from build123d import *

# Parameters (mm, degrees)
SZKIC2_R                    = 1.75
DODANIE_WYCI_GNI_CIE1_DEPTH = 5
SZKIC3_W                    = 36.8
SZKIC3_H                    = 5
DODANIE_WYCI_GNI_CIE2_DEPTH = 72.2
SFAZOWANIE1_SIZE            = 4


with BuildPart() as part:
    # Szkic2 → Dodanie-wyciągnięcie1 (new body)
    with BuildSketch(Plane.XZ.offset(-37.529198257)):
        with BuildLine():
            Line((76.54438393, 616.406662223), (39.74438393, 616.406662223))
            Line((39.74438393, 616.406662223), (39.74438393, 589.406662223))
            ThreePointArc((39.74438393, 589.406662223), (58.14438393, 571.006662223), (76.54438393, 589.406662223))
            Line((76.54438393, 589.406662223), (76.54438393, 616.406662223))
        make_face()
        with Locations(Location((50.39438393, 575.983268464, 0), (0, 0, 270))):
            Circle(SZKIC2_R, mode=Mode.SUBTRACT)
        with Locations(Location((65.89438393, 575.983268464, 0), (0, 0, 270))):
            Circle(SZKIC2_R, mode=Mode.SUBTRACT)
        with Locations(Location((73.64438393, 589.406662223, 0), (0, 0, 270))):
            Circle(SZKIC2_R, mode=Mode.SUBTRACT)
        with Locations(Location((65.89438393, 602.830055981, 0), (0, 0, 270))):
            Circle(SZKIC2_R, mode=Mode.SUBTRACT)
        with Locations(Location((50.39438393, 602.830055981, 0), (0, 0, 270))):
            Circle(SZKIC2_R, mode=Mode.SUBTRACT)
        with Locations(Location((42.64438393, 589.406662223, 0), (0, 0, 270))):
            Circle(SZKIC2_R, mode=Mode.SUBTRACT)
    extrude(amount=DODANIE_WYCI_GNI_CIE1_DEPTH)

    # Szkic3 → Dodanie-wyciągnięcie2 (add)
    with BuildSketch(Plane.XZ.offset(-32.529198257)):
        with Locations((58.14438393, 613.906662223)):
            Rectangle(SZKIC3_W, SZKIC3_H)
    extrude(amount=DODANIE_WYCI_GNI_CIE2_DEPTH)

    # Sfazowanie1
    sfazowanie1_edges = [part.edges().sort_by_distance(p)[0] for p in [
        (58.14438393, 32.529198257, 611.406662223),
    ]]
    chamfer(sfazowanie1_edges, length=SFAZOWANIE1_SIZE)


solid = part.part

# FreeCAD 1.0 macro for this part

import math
import FreeCAD as App
import Part
import Sketcher

V = App.Vector


def edges_at(feature, points):
    """Names of the edges that pass closest to the given points."""
    edges = feature.Shape.Edges
    near = lambda p: min(range(len(edges)), key=lambda i: edges[i].distToShape(Part.Vertex(*p))[0])
    return sorted({f"Edge{near(p) + 1}" for p in points})

doc = App.newDocument("Part")
body = doc.addObject("PartDesign::Body", "Body")

# Sketch on XZ plane
sketch1 = doc.addObject("Sketcher::SketchObject", "Sketch")
body.addObject(sketch1)
sketch1.AttachmentSupport = (doc.XZ_Plane, [""])
sketch1.MapMode = "FlatFace"
sketch1.AttachmentOffset = App.Placement(V(0, 0, -37.529198), App.Rotation())
sketch1.addGeometry([
    Part.LineSegment(V(76.5, 616.4, 0), V(39.7, 616.4, 0)),  # 0
    Part.LineSegment(V(39.7, 616.4, 0), V(39.7, 589.4, 0)),  # 1
    Part.ArcOfCircle(Part.Circle(V(58.1, 589.4, 0), V(0, 0, 1), 18.4), math.radians(180), math.radians(360)),  # 2
    Part.LineSegment(V(76.5, 589.4, 0), V(76.5, 616.4, 0)),  # 3
    Part.Circle(V(50.4, 576, 0), V(0, 0, 1), 1.8),  # 4
    Part.Circle(V(65.9, 576, 0), V(0, 0, 1), 1.8),  # 5
    Part.Circle(V(42.6, 589.4, 0), V(0, 0, 1), 1.8),  # 6
    Part.Circle(V(50.4, 602.8, 0), V(0, 0, 1), 1.8),  # 7
    Part.Circle(V(73.6, 589.4, 0), V(0, 0, 1), 1.8),  # 8
    Part.Circle(V(65.9, 602.8, 0), V(0, 0, 1), 1.8),  # 9
], False)
sketch1.addConstraint([
    Sketcher.Constraint("Coincident", 0, 2, 1, 1),
    Sketcher.Constraint("Tangent", 1, 2, 2, 1),
    Sketcher.Constraint("Tangent", 2, 2, 3, 1),
    Sketcher.Constraint("Coincident", 3, 2, 0, 1),
    Sketcher.Constraint("Horizontal", 0),
    Sketcher.Constraint("Vertical", 1),
    Sketcher.Constraint("Vertical", 3),
    Sketcher.Constraint("Equal", 4, 5),
    Sketcher.Constraint("Equal", 5, 6),
    Sketcher.Constraint("Equal", 6, 7),
    Sketcher.Constraint("Equal", 7, 8),
    Sketcher.Constraint("Equal", 8, 9),
    Sketcher.Constraint("Horizontal", 4, 3, 5, 3),
    Sketcher.Constraint("Horizontal", 2, 3, 6, 3),
    Sketcher.Constraint("Horizontal", 6, 3, 8, 3),
    Sketcher.Constraint("Horizontal", 7, 3, 9, 3),
    Sketcher.Constraint("Vertical", 4, 3, 7, 3),
    Sketcher.Constraint("Vertical", 5, 3, 9, 3),
    Sketcher.Constraint("Diameter", 4, 3.5),
    Sketcher.Constraint("Radius", 2, 18.4),
    Sketcher.Constraint("DistanceY", 1, 2, 1, 1, 27.0),
    Sketcher.Constraint("DistanceX", 6, 3, 8, 3, 31.0),
    Sketcher.Constraint("DistanceX", 4, 3, 5, 3, 15.5),
    Sketcher.Constraint("DistanceX", 6, 3, 2, 3, 15.5),
    Sketcher.Constraint("DistanceX", 4, 3, 2, 3, 7.75),
    Sketcher.Constraint("DistanceY", -1, 1, 4, 3, 575.983268),
    Sketcher.Constraint("DistanceX", -1, 1, 2, 3, 58.144384),
    Sketcher.Constraint("DistanceY", -1, 1, 2, 3, 589.406662),
    Sketcher.Constraint("DistanceY", -1, 1, 7, 3, 602.830056),
])
pad1 = doc.addObject("PartDesign::Pad", "Pad")
body.addObject(pad1)
pad1.Profile = sketch1
pad1.Length = 5

# Sketch on XZ plane
sketch2 = doc.addObject("Sketcher::SketchObject", "Sketch001")
body.addObject(sketch2)
sketch2.AttachmentSupport = (doc.XZ_Plane, [""])
sketch2.MapMode = "FlatFace"
sketch2.AttachmentOffset = App.Placement(V(0, 0, -32.529198), App.Rotation())
sketch2.addGeometry([
    Part.LineSegment(V(40, 616, 0), V(40, 611, 0)),
    Part.LineSegment(V(40, 611, 0), V(77, 611, 0)),
    Part.LineSegment(V(77, 611, 0), V(77, 616, 0)),
    Part.LineSegment(V(77, 616, 0), V(40, 616, 0)),
], False)
sketch2.addConstraint([
    Sketcher.Constraint("Coincident", 0, 2, 1, 1),
    Sketcher.Constraint("Coincident", 1, 2, 2, 1),
    Sketcher.Constraint("Coincident", 2, 2, 3, 1),
    Sketcher.Constraint("Coincident", 3, 2, 0, 1),
    Sketcher.Constraint("Vertical", 0),
    Sketcher.Constraint("Horizontal", 1),
    Sketcher.Constraint("Vertical", 2),
    Sketcher.Constraint("Horizontal", 3),
    Sketcher.Constraint("DistanceY", 0, 2, 0, 1, 5.0),
    Sketcher.Constraint("DistanceX", 1, 1, 1, 2, 36.8),
    Sketcher.Constraint("DistanceX", -1, 1, 0, 2, 39.744384),
    Sketcher.Constraint("DistanceY", -1, 1, 0, 2, 611.406662),
])
pad2 = doc.addObject("PartDesign::Pad", "Pad001")
body.addObject(pad2)
pad2.Profile = sketch2
pad2.Length = 72.2
doc.recompute()

chamfer = doc.addObject("PartDesign::Chamfer", "Chamfer")
body.addObject(chamfer)
chamfer.Base = (pad2, edges_at(pad2, [(58.144, 32.529, 611.407)]))
chamfer.Size = 4

doc.recompute()
